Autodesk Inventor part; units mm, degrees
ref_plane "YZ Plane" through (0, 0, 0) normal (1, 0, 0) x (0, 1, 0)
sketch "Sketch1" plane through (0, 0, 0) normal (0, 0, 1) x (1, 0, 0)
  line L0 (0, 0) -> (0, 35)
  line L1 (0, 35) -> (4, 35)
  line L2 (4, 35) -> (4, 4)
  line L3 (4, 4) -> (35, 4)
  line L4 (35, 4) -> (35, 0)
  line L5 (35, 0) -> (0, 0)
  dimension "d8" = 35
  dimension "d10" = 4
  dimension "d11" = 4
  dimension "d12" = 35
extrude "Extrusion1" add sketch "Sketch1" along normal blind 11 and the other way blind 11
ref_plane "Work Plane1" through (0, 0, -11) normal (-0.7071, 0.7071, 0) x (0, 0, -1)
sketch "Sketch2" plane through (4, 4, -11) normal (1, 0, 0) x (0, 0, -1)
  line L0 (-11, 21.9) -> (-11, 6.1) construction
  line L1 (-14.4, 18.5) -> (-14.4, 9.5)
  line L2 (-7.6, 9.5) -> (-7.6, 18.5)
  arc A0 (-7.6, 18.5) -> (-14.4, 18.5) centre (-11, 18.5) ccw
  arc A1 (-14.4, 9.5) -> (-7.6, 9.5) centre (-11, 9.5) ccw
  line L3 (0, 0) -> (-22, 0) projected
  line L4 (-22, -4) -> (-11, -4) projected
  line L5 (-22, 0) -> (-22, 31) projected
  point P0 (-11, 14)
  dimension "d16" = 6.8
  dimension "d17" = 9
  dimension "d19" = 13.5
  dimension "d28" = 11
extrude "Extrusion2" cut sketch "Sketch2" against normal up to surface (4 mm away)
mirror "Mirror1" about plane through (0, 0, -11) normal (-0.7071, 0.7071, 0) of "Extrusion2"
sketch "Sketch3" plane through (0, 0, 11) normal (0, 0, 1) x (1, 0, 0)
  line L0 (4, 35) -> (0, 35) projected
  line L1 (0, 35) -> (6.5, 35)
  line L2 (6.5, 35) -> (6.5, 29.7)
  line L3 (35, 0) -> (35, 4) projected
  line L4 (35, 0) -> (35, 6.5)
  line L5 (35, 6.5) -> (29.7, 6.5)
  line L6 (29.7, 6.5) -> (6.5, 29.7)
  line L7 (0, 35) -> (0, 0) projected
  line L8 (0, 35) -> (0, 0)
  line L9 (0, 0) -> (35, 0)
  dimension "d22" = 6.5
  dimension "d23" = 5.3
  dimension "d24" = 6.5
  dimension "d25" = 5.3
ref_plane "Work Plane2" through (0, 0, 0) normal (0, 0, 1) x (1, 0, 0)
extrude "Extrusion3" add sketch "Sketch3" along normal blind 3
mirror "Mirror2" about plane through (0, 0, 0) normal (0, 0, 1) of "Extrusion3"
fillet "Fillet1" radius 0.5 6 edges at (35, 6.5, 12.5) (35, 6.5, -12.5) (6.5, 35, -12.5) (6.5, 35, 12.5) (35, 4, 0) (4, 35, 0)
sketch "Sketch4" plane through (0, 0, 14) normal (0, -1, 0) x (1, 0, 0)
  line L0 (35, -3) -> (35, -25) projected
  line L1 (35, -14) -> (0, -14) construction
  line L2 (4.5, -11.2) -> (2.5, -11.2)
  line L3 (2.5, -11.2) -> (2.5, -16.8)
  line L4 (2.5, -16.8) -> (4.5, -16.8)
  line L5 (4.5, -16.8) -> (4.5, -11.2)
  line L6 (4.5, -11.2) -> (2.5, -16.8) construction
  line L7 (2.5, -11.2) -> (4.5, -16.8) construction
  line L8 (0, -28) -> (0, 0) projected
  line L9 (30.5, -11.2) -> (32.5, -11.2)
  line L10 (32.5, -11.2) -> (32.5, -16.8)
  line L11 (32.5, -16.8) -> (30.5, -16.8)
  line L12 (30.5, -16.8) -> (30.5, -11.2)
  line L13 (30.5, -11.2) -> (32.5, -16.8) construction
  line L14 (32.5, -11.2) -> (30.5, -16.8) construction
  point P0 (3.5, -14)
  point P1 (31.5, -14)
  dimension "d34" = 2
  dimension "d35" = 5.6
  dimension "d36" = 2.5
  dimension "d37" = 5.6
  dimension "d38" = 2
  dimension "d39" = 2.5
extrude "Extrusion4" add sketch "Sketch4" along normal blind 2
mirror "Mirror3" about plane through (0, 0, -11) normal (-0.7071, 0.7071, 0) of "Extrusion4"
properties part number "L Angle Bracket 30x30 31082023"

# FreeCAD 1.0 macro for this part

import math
import FreeCAD as App
import Part
import Sketcher


def edges_at(feature, points):
    """Names of the edges that pass closest to the given points."""
    edges = feature.Shape.Edges
    near = lambda p: min(range(len(edges)), key=lambda i: edges[i].distToShape(Part.Vertex(*p))[0])
    return sorted({f"Edge{near(p) + 1}" for p in points})


def add_polygon(sketch, points):
    """Adds a closed chain of lines whose ends are joined by coincident constraints."""
    first, n = sketch.GeometryCount, len(points)
    for a, b in zip(points, points[1:] + points[:1]):
        sketch.addGeometry(Part.LineSegment(App.Vector(*a, 0), App.Vector(*b, 0)), False)
    for i in range(n):
        sketch.addConstraint(Sketcher.Constraint("Coincident", first + i, 2, first + (i + 1) % n, 1))

doc = App.newDocument("Part")
body = doc.addObject("PartDesign::Body", "Body")

sketch1 = doc.addObject("Sketcher::SketchObject", "Sketch")
body.addObject(sketch1)
sketch1.AttachmentSupport = (doc.XY_Plane, [""])
sketch1.MapMode = "FlatFace"
add_polygon(sketch1, [(0, 35), (0, 0), (35, 0), (35, 4), (4, 4), (4, 35)])
sketch1.addConstraint(Sketcher.Constraint("Vertical", 0))
sketch1.addConstraint(Sketcher.Constraint("Horizontal", 1))
sketch1.addConstraint(Sketcher.Constraint("Vertical", 2))
sketch1.addConstraint(Sketcher.Constraint("Horizontal", 3))
sketch1.addConstraint(Sketcher.Constraint("Vertical", 4))
sketch1.addConstraint(Sketcher.Constraint("Horizontal", 5))
sketch1.addConstraint(Sketcher.Constraint("Coincident", 0, 2, -1, 1))
sketch1.addConstraint(Sketcher.Constraint("Equal", 1, 0))
sketch1.addConstraint(Sketcher.Constraint("Equal", 5, 2))
sketch1.addConstraint(Sketcher.Constraint("DistanceX", 1, 1, 1, 2, 35.0))
sketch1.addConstraint(Sketcher.Constraint("DistanceX", 5, 2, 5, 1, 4.0))
pad1 = doc.addObject("PartDesign::Pad", "Pad")
body.addObject(pad1)
pad1.Profile = sketch1
pad1.Type = "TwoLengths"
pad1.Length = 11
pad1.Length2 = 11

sketch2 = doc.addObject("Sketcher::SketchObject", "Sketch001")
body.addObject(sketch2)
sketch2.AttachmentSupport = (doc.YZ_Plane, [""])
sketch2.MapMode = "FlatFace"
sketch2.AttachmentOffset = App.Placement(App.Vector(0, 0, 4), App.Rotation())
sketch2.addGeometry(Part.ArcOfCircle(Part.Circle(App.Vector(22.5, 0, 0), App.Vector(0, 0, 1), 3.4), math.radians(-90), math.radians(90)), False)
sketch2.addGeometry(Part.LineSegment(App.Vector(22.5, 3.4, 0), App.Vector(13.5, 3.4, 0)), False)
sketch2.addGeometry(Part.ArcOfCircle(Part.Circle(App.Vector(13.5, 0, 0), App.Vector(0, 0, 1), 3.4), math.radians(90), math.radians(270)), False)
sketch2.addGeometry(Part.LineSegment(App.Vector(13.5, -3.4, 0), App.Vector(22.5, -3.4, 0)), False)
sketch2.addConstraint(Sketcher.Constraint("Tangent", 0, 2, 1, 1))
sketch2.addConstraint(Sketcher.Constraint("Tangent", 1, 2, 2, 1))
sketch2.addConstraint(Sketcher.Constraint("Tangent", 2, 2, 3, 1))
sketch2.addConstraint(Sketcher.Constraint("Tangent", 3, 2, 0, 1))
sketch2.addConstraint(Sketcher.Constraint("Horizontal", 1))
sketch2.addConstraint(Sketcher.Constraint("Horizontal", 3))
sketch2.addConstraint(Sketcher.Constraint("PointOnObject", 0, 3, -1))
sketch2.addConstraint(Sketcher.Constraint("Radius", 0, 3.4))
sketch2.addConstraint(Sketcher.Constraint("DistanceX", 1, 2, 1, 1, 9.0))
sketch2.addConstraint(Sketcher.Constraint("DistanceX", -1, 1, 2, 3, 13.5))
pocket1 = doc.addObject("PartDesign::Pocket", "Pocket")
body.addObject(pocket1)
pocket1.Profile = sketch2
pocket1.Length = 4
doc.recompute()

datumplane = doc.addObject("PartDesign::Plane", "DatumPlane")
body.addObject(datumplane)
datumplane.Placement = App.Placement(App.Vector(0, 0, 0), App.Rotation(App.Vector(-0.707106781, -0.707106781, 0), App.Vector(0, 0, -1), App.Vector(0.707106781, -0.707106781, 0), "ZXY"))
mirrored = doc.addObject("PartDesign::Mirrored", "Mirrored")
body.addObject(mirrored)
mirrored.Originals = [pocket1]
mirrored.MirrorPlane = (datumplane, [""])
body.Tip = mirrored

sketch3 = doc.addObject("Sketcher::SketchObject", "Sketch002")
body.addObject(sketch3)
sketch3.AttachmentSupport = (doc.XY_Plane, [""])
sketch3.MapMode = "FlatFace"
sketch3.AttachmentOffset = App.Placement(App.Vector(0, 0, 11), App.Rotation())
add_polygon(sketch3, [(6.5, 35), (0, 35), (0, 0), (35, 0), (35, 6.5), (29.7, 6.5), (6.5, 29.7)])
sketch3.addConstraint(Sketcher.Constraint("Horizontal", 0))
sketch3.addConstraint(Sketcher.Constraint("Vertical", 1))
sketch3.addConstraint(Sketcher.Constraint("Horizontal", 2))
sketch3.addConstraint(Sketcher.Constraint("Vertical", 3))
sketch3.addConstraint(Sketcher.Constraint("Horizontal", 4))
sketch3.addConstraint(Sketcher.Constraint("Vertical", 6))
sketch3.addConstraint(Sketcher.Constraint("Coincident", 1, 2, -1, 1))
sketch3.addConstraint(Sketcher.Constraint("Equal", 2, 1))
sketch3.addConstraint(Sketcher.Constraint("Equal", 0, 3))
sketch3.addConstraint(Sketcher.Constraint("Equal", 4, 6))
sketch3.addConstraint(Sketcher.Constraint("DistanceX", 0, 2, 0, 1, 6.5))
sketch3.addConstraint(Sketcher.Constraint("DistanceX", 4, 2, 4, 1, 5.3))
sketch3.addConstraint(Sketcher.Constraint("DistanceX", 2, 1, 2, 2, 35.0))
pad2 = doc.addObject("PartDesign::Pad", "Pad001")
body.addObject(pad2)
pad2.Profile = sketch3
pad2.Length = 3
doc.recompute()

mirrored2 = doc.addObject("PartDesign::Mirrored", "Mirrored001")
body.addObject(mirrored2)
mirrored2.Originals = [pad2]
mirrored2.MirrorPlane = (doc.XY_Plane, [""])
body.Tip = mirrored2
doc.recompute()

fillet = doc.addObject("PartDesign::Fillet", "Fillet")
body.addObject(fillet)
fillet.Base = (mirrored2, edges_at(mirrored2, [
    (35, 6.5, 12.5),
    (35, 6.5, -12.5),
    (6.5, 35, -12.5),
    (6.5, 35, 12.5),
    (35, 4, 0),
    (4, 35, 0),
]))
fillet.Radius = 0.5

sketch4 = doc.addObject("Sketcher::SketchObject", "Sketch003")
body.addObject(sketch4)
sketch4.AttachmentSupport = (doc.XZ_Plane, [""])
sketch4.MapMode = "FlatFace"
add_polygon(sketch4, [(4.5, -2.8), (4.5, 2.8), (2.5, 2.8), (2.5, -2.8)])
add_polygon(sketch4, [(32.5, 2.8), (30.5, 2.8), (30.5, -2.8), (32.5, -2.8)])
sketch4.addConstraint(Sketcher.Constraint("Vertical", 0))
sketch4.addConstraint(Sketcher.Constraint("Horizontal", 1))
sketch4.addConstraint(Sketcher.Constraint("Vertical", 2))
sketch4.addConstraint(Sketcher.Constraint("Horizontal", 3))
sketch4.addConstraint(Sketcher.Constraint("Horizontal", 4))
sketch4.addConstraint(Sketcher.Constraint("Vertical", 5))
sketch4.addConstraint(Sketcher.Constraint("Horizontal", 6))
sketch4.addConstraint(Sketcher.Constraint("Vertical", 7))
sketch4.addConstraint(Sketcher.Constraint("Horizontal", 1, 2, 4, 2))
sketch4.addConstraint(Sketcher.Constraint("Horizontal", 3, 2, 5, 2))
sketch4.addConstraint(Sketcher.Constraint("Equal", 3, 4))
sketch4.addConstraint(Sketcher.Constraint("DistanceX", 1, 2, 1, 1, 2.0))
sketch4.addConstraint(Sketcher.Constraint("DistanceY", 0, 1, 0, 2, 5.6))
sketch4.addConstraint(Sketcher.Constraint("DistanceX", -1, 1, 1, 2, 2.5))
sketch4.addConstraint(Sketcher.Constraint("DistanceX", 0, 2, 4, 2, 26.0))
sketch4.addConstraint(Sketcher.Constraint("DistanceY", -1, 1, 0, 2, 2.8))
pad3 = doc.addObject("PartDesign::Pad", "Pad002")
body.addObject(pad3)
pad3.Profile = sketch4
pad3.Length = 2
doc.recompute()

datumplane2 = doc.addObject("PartDesign::Plane", "DatumPlane001")
body.addObject(datumplane2)
datumplane2.Placement = App.Placement(App.Vector(0, 0, 0), App.Rotation(App.Vector(-0.707106781, -0.707106781, 0), App.Vector(0, 0, -1), App.Vector(0.707106781, -0.707106781, 0), "ZXY"))
mirrored3 = doc.addObject("PartDesign::Mirrored", "Mirrored002")
body.addObject(mirrored3)
mirrored3.Originals = [pad3]
mirrored3.MirrorPlane = (datumplane2, [""])
body.Tip = mirrored3

doc.recompute()
